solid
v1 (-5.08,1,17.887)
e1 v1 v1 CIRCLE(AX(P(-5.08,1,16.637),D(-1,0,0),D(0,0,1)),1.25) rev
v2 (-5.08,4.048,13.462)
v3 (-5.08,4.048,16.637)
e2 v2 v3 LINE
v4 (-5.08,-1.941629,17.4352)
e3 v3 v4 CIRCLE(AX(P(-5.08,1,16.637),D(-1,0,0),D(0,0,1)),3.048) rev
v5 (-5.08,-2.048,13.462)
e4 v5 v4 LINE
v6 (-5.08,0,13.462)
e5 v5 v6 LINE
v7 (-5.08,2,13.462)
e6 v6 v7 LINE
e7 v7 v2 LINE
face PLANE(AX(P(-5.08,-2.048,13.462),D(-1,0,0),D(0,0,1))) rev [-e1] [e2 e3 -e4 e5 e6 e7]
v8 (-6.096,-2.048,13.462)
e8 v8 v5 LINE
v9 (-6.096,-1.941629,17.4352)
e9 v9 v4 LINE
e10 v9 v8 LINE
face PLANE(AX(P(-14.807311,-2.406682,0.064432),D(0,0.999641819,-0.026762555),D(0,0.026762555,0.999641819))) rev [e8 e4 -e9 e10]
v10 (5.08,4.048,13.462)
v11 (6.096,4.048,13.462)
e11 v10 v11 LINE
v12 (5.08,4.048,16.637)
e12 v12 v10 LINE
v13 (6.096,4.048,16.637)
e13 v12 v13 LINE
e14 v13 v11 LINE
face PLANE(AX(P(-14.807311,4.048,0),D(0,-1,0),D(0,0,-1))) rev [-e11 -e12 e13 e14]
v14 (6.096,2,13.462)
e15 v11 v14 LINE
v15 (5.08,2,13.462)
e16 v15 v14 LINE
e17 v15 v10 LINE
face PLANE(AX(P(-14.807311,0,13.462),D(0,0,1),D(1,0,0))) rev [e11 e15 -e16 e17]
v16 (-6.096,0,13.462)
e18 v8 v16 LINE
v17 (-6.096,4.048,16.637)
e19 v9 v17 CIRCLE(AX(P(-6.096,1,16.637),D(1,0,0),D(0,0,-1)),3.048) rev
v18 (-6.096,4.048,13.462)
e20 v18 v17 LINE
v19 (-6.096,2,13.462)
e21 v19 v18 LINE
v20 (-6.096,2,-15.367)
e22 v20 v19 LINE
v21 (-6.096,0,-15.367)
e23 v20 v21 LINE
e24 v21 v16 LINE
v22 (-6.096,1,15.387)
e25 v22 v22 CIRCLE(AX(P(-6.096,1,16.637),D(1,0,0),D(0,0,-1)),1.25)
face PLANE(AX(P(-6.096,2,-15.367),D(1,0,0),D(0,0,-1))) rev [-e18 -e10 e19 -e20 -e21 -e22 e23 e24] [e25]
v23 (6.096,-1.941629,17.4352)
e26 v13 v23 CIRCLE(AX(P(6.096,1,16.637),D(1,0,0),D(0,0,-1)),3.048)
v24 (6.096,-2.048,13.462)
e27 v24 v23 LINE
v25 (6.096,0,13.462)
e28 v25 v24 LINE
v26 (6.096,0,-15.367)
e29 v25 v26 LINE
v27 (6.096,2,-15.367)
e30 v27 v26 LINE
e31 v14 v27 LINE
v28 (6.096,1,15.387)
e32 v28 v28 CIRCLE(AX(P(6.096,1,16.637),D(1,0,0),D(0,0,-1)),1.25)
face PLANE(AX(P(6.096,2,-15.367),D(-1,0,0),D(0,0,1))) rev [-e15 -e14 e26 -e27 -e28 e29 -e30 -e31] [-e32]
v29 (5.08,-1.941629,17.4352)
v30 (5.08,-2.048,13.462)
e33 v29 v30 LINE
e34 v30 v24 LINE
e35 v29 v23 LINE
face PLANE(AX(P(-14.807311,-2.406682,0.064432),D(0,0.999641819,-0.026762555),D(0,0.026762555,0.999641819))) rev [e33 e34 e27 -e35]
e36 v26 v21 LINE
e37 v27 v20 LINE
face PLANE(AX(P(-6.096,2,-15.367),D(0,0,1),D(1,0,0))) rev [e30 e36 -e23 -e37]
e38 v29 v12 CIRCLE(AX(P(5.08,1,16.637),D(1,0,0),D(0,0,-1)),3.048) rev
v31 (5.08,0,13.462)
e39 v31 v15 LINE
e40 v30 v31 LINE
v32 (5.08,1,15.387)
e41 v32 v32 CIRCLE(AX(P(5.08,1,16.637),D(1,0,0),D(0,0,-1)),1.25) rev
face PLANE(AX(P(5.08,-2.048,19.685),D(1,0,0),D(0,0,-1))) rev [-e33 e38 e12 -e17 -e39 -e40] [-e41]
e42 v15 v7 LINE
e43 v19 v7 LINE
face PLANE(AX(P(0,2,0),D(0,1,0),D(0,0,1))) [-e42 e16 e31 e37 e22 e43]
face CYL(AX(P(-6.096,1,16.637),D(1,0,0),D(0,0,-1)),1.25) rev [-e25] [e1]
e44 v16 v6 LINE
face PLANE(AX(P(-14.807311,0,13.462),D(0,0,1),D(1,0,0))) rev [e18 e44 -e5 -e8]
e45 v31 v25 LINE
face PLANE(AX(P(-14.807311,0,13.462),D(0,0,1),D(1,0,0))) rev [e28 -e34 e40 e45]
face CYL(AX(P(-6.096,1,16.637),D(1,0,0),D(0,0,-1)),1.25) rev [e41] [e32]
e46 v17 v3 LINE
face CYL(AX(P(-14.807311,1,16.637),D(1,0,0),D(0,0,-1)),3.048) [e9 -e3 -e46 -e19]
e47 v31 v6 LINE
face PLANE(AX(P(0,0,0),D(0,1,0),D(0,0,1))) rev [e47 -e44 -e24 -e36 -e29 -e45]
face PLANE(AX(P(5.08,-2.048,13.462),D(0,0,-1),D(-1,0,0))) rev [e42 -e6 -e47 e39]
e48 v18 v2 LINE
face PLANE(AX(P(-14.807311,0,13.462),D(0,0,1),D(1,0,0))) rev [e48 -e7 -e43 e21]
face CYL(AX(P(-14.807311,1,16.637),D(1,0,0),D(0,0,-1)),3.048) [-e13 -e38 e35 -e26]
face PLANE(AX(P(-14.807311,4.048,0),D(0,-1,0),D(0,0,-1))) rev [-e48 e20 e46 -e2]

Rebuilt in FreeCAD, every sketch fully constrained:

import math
import FreeCAD as App
import Part
import Sketcher

V = App.Vector
Q = App.Units.Quantity


def add_polygon(sketch, points):
    """Adds a closed chain of lines whose ends are joined by coincident constraints."""
    first, n = sketch.GeometryCount, len(points)
    for a, b in zip(points, points[1:] + points[:1]):
        sketch.addGeometry(Part.LineSegment(App.Vector(*a, 0), App.Vector(*b, 0)), False)
    for i in range(n):
        sketch.addConstraint(Sketcher.Constraint("Coincident", first + i, 2, first + (i + 1) % n, 1))

doc = App.newDocument("Part")
params = doc.addObject("Spreadsheet::Sheet", "Params")
for row, (alias, value) in enumerate([
    ("sketch1_width", "0.48 in"),
    ("sketch1_height", "1.21 in"),
    ("pad1_length", "2 mm"),
    ("sketch2_radius", "0.12 in"),
    ("sketch2_width", "0.24 in"),
    ("sketch2_height", "0.125 in"),
    ("pad2_length", "0.48 in"),
    ("sketch4_width", "0.4 in"),
    ("sketch4_height", "0.245 in"),
], start=1):
    params.set(f"A{row}", alias)
    params.set(f"B{row}", "=" + value)
    params.setAlias(f"B{row}", alias)

body = doc.addObject("PartDesign::Body", "Body")

sketch1 = body.newObject("Sketcher::SketchObject", "Sketch")
sketch1.AttachmentSupport = (doc.getObject("XZ_Plane"), [""])
sketch1.MapMode = "FlatFace"
add_polygon(sketch1, [(-6, -15), (-6, 15), (6, 15), (6, -15)])
sketch1.addConstraint([
    Sketcher.Constraint("Vertical", 0),
    Sketcher.Constraint("Horizontal", 1),
    Sketcher.Constraint("Vertical", 2),
    Sketcher.Constraint("Horizontal", 3),
    Sketcher.Constraint("Symmetric", 0, 2, 2, 2, -1, 1),
    Sketcher.Constraint("DistanceX", 1, 1, 1, 2, Q("0.48 in")),
    Sketcher.Constraint("DistanceY", 0, 1, 0, 2, Q("1.21 in")),
])
sketch1.setExpression("Constraints[9]", "Params.sketch1_width")
sketch1.setExpression("Constraints[10]", "Params.sketch1_height")
pad1 = body.newObject("PartDesign::Pad", "Pad")
pad1.Profile = sketch1
pad1.setExpression("Length", "Params.pad1_length")
pad1.Reversed = True

sketch2 = body.newObject("Sketcher::SketchObject", "Sketch001")
sketch2.AttachmentSupport = (doc.getObject("YZ_Plane"), [""])
sketch2.MapMode = "FlatFace"
sketch2.AttachmentOffset = App.Placement(V(0, 0, 0.24 * 25.4), App.Rotation())
sketch2.addGeometry([
    Part.LineSegment(V(-2, 16, 0), V(-2, 13.5, 0)),
    Part.LineSegment(V(-2, 13.5, 0), V(4, 13.5, 0)),
    Part.LineSegment(V(4, 13.5, 0), V(4, 16.6, 0)),
    Part.ArcOfCircle(Part.Circle(V(1, 16.6, 0), V(0, 0, 1), 3), math.radians(0), math.radians(165)),
    Part.LineSegment(V(-1.9, 17.4, 0), V(-2, 16, 0)),
    Part.ArcOfCircle(Part.Circle(V(1, 16.6, 0), V(0, 0, 1), 3), math.radians(-90), math.radians(-70.85)),
    Part.ArcOfCircle(Part.Circle(V(1, 16.6, 0), V(0, 0, 1), 3), math.radians(-109.15), math.radians(-90)),
    Part.LineSegment(V(0, 13.8, 0), V(0, 15.4, 0)),
    Part.LineSegment(V(0, 15.4, 0), V(2, 15.4, 0)),
    Part.LineSegment(V(2, 15.4, 0), V(2, 13.8, 0)),
], False)
sketch2.addConstraint([
    Sketcher.Constraint("Coincident", 0, 2, 1, 1),
    Sketcher.Constraint("Coincident", 1, 2, 2, 1),
    Sketcher.Constraint("Tangent", 2, 2, 3, 1),
    Sketcher.Constraint("Coincident", 3, 2, 4, 1),
    Sketcher.Constraint("Coincident", 4, 2, 0, 1),
    Sketcher.Constraint("Tangent", 5, 1, 6, 2),
    Sketcher.Constraint("Coincident", 6, 1, 7, 1),
    Sketcher.Constraint("Coincident", 7, 2, 8, 1),
    Sketcher.Constraint("Coincident", 8, 2, 9, 1),
    Sketcher.Constraint("Coincident", 9, 2, 5, 2),
    Sketcher.Constraint("Horizontal", 1),
    Sketcher.Constraint("Vertical", 2),
    Sketcher.Constraint("Vertical", 7),
    Sketcher.Constraint("Horizontal", 8),
    Sketcher.Constraint("Vertical", 9),
    Sketcher.Constraint("Coincident", 5, 3, 3, 3),
    Sketcher.Constraint("Equal", 3, 5),
    Sketcher.Constraint("Equal", 5, 6),
    Sketcher.Constraint("PointOnObject", 6, 1, -2),
    Sketcher.Constraint("Parallel", 0, 4),
    Sketcher.Constraint("Horizontal", 6, 1, 9, 2),
    Sketcher.Constraint("Vertical", 6, 3, 5, 1),
    Sketcher.Constraint("Radius", 3, Q("0.12 in")),
    Sketcher.Constraint("DistanceX", 1, 1, 1, 2, Q("0.24 in")),
    Sketcher.Constraint("DistanceY", 2, 1, 2, 2, Q("0.125 in")),
    Sketcher.Constraint("DistanceY", -1, 1, 0, 2, Q("0.53 in")),
    Sketcher.Constraint("DistanceY", 7, 2, 6, 3, Q("0.05 in")),
    Sketcher.Constraint("DistanceX", 8, 1, 8, 2, 2.0),
    Sketcher.Constraint("DistanceY", -1, 1, 3, 2, 17.4352),
    Sketcher.Constraint("Distance", 0, 2.536246),
])
sketch2.setExpression("Constraints[22]", "Params.sketch2_radius")
sketch2.setExpression("Constraints[23]", "Params.sketch2_width")
sketch2.setExpression("Constraints[24]", "Params.sketch2_height")
pad2 = body.newObject("PartDesign::Pad", "Pad001")
pad2.Profile = sketch2
pad2.setExpression("Length", "Params.pad2_length")
pad2.Reversed = True

sketch3 = body.newObject("Sketcher::SketchObject", "Sketch002")
sketch3.AttachmentSupport = (doc.getObject("YZ_Plane"), [""])
sketch3.MapMode = "FlatFace"
sketch3.AttachmentOffset = App.Placement(V(0, 0, 0.24 * 25.4), App.Rotation())
sketch3.addGeometry(Part.Circle(V(1, 16.6, 0), V(0, 0, 1), 1.2), False)
sketch3.addConstraint([
    Sketcher.Constraint("Diameter", 0, 2.5),
    Sketcher.Constraint("DistanceY", -1, 1, 0, 3, Q("0.655 in")),
    Sketcher.Constraint("DistanceX", -1, 1, 0, 3, 1.0),
])
pocket1 = body.newObject("PartDesign::Pocket", "Pocket")
pocket1.Profile = sketch3
pocket1.Type = "ThroughAll"

sketch4 = body.newObject("Sketcher::SketchObject", "Sketch003")
sketch4.AttachmentSupport = (doc.getObject("XZ_Plane"), [""])
sketch4.MapMode = "FlatFace"
sketch4.AttachmentOffset = App.Placement(V(0, 0, -2), App.Rotation())
add_polygon(sketch4, [(-5, 13), (-5, 20), (5, 20), (5, 13)])
sketch4.addConstraint([
    Sketcher.Constraint("Vertical", 0),
    Sketcher.Constraint("Horizontal", 1),
    Sketcher.Constraint("Vertical", 2),
    Sketcher.Constraint("Horizontal", 3),
    Sketcher.Constraint("DistanceX", 1, 1, 1, 2, Q("0.4 in")),
    Sketcher.Constraint("DistanceX", 0, 2, -1, 1, Q("0.2 in")),
    Sketcher.Constraint("DistanceY", 0, 1, 0, 2, Q("0.245 in")),
    Sketcher.Constraint("DistanceY", -1, 1, 2, 2, Q("0.53 in")),
])
sketch4.setExpression("Constraints[8]", "Params.sketch4_width")
sketch4.setExpression("Constraints[10]", "Params.sketch4_height")
pocket2 = body.newObject("PartDesign::Pocket", "Pocket001")
pocket2.Profile = sketch4
pocket2.Type = "ThroughAll"
pocket2.Midplane = True

doc.recompute()
